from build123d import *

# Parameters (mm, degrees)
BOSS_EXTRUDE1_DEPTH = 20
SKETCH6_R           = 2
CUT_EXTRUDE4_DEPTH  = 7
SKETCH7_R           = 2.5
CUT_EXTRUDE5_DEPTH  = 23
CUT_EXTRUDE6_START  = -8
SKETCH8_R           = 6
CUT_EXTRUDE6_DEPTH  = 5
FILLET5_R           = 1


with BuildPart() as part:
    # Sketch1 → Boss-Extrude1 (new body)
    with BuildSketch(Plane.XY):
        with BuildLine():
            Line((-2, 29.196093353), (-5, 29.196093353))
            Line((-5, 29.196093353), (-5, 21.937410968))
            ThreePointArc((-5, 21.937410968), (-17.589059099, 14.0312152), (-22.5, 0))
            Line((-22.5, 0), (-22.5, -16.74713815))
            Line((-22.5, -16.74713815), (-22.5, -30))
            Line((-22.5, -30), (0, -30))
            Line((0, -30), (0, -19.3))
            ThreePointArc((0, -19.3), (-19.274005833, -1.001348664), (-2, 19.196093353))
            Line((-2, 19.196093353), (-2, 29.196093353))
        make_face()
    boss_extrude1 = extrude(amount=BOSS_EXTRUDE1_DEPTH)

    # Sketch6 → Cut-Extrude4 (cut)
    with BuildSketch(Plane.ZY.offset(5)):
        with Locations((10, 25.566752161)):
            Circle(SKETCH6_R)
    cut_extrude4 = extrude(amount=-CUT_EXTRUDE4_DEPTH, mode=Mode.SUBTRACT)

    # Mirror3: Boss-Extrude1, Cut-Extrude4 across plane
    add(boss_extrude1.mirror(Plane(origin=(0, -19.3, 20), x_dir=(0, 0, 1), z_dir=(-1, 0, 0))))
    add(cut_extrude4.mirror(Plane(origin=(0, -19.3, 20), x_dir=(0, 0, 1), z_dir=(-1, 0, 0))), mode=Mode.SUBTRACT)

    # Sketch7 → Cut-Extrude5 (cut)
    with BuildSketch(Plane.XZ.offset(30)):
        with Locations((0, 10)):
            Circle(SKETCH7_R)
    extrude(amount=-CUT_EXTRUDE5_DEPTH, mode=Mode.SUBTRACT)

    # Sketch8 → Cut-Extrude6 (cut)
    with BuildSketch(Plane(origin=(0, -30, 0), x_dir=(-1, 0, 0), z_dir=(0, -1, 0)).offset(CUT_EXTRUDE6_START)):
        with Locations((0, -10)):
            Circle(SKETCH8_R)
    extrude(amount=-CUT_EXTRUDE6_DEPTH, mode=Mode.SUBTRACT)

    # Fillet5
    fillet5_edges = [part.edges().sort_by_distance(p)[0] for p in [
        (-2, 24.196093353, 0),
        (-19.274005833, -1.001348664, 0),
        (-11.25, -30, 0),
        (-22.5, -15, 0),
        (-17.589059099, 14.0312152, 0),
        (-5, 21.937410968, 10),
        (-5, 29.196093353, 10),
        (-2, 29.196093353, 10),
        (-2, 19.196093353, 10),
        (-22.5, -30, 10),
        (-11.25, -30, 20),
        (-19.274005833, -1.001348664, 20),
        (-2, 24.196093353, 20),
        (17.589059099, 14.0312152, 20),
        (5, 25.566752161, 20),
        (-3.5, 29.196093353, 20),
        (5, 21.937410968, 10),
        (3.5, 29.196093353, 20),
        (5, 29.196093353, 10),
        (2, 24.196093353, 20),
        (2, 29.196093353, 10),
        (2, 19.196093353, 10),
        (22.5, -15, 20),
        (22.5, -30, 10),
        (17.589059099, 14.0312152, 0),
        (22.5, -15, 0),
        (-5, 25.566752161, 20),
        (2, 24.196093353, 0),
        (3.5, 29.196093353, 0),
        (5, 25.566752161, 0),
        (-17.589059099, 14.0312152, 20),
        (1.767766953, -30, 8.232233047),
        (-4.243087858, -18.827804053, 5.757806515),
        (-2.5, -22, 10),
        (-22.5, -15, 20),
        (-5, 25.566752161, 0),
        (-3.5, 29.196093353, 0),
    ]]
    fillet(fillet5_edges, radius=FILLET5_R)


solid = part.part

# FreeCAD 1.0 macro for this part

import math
import FreeCAD as App
import Part
import Sketcher

V = App.Vector


def edges_at(feature, points):
    """Names of the edges that pass closest to the given points."""
    edges = feature.Shape.Edges
    near = lambda p: min(range(len(edges)), key=lambda i: edges[i].distToShape(Part.Vertex(*p))[0])
    return sorted({f"Edge{near(p) + 1}" for p in points})

doc = App.newDocument("Part")
body = doc.addObject("PartDesign::Body", "Body")

# Sketch on XY plane
sketch1 = body.newObject("Sketcher::SketchObject", "Sketch")
sketch1.AttachmentSupport = (doc.getObject("XY_Plane"), [""])
sketch1.MapMode = "FlatFace"
sketch1.addGeometry(Part.LineSegment(V(-2, 29.2, 0), V(-5, 29.2, 0)), False)
sketch1.addGeometry(Part.LineSegment(V(-5, 29.2, 0), V(-5, 21.9, 0)), False)
sketch1.addGeometry(Part.ArcOfCircle(Part.Circle(V(0, 0, 0), V(0, 0, 1), 22.5), math.radians(103), math.radians(180)), False)
sketch1.addGeometry(Part.LineSegment(V(-22.5, 0, 0), V(-22.5, -30, 0)), False)
sketch1.addGeometry(Part.LineSegment(V(-22.5, -30, 0), V(0, -30, 0)), False)
sketch1.addGeometry(Part.LineSegment(V(0, -30, 0), V(0, -19.3, 0)), False)
sketch1.addGeometry(Part.ArcOfCircle(Part.Circle(V(0, 0, 0), V(0, 0, 1), 19.3), math.radians(96), math.radians(270)), False)
sketch1.addGeometry(Part.LineSegment(V(-2, 19.2, 0), V(-2, 29.2, 0)), False)
sketch1.addConstraint(Sketcher.Constraint("Coincident", 0, 2, 1, 1))
sketch1.addConstraint(Sketcher.Constraint("Coincident", 1, 2, 2, 1))
sketch1.addConstraint(Sketcher.Constraint("Tangent", 2, 2, 3, 1))
sketch1.addConstraint(Sketcher.Constraint("Coincident", 3, 2, 4, 1))
sketch1.addConstraint(Sketcher.Constraint("Coincident", 4, 2, 5, 1))
sketch1.addConstraint(Sketcher.Constraint("Coincident", 5, 2, 6, 2))
sketch1.addConstraint(Sketcher.Constraint("Coincident", 6, 1, 7, 1))
sketch1.addConstraint(Sketcher.Constraint("Coincident", 7, 2, 0, 1))
sketch1.addConstraint(Sketcher.Constraint("Horizontal", 0))
sketch1.addConstraint(Sketcher.Constraint("Vertical", 1))
sketch1.addConstraint(Sketcher.Constraint("Vertical", 3))
sketch1.addConstraint(Sketcher.Constraint("Horizontal", 4))
sketch1.addConstraint(Sketcher.Constraint("Vertical", 5))
sketch1.addConstraint(Sketcher.Constraint("Vertical", 7))
sketch1.addConstraint(Sketcher.Constraint("Coincident", 2, 3, -1, 1))
sketch1.addConstraint(Sketcher.Constraint("Coincident", 6, 3, -1, 1))
sketch1.addConstraint(Sketcher.Constraint("PointOnObject", 4, 2, -2))
sketch1.addConstraint(Sketcher.Constraint("Radius", 2, 22.5))
sketch1.addConstraint(Sketcher.Constraint("Radius", 6, 19.3))
sketch1.addConstraint(Sketcher.Constraint("DistanceX", 0, 2, 0, 1, 3.0))
sketch1.addConstraint(Sketcher.Constraint("DistanceY", 3, 2, 3, 1, 30.0))
sketch1.addConstraint(Sketcher.Constraint("DistanceY", 7, 1, 7, 2, 10.0))
sketch1.addConstraint(Sketcher.Constraint("DistanceX", 0, 2, -1, 1, 5.0))
pad1 = body.newObject("PartDesign::Pad", "Pad")
pad1.Profile = sketch1
pad1.Length = 20

# Sketch on YZ plane
sketch2 = body.newObject("Sketcher::SketchObject", "Sketch001")
sketch2.AttachmentSupport = (doc.getObject("YZ_Plane"), [""])
sketch2.MapMode = "FlatFace"
sketch2.AttachmentOffset = App.Placement(V(0, 0, -5), App.Rotation())
sketch2.addGeometry(Part.Circle(V(25.6, 10, 0), V(0, 0, 1), 2), False)
sketch2.addConstraint(Sketcher.Constraint("Diameter", 0, 4.0))
sketch2.addConstraint(Sketcher.Constraint("DistanceY", -1, 1, 0, 3, 10.0))
sketch2.addConstraint(Sketcher.Constraint("DistanceX", -1, 1, 0, 3, 25.566752))
pocket1 = body.newObject("PartDesign::Pocket", "Pocket")
pocket1.Profile = sketch2
pocket1.Length = 7
pocket1.Reversed = True
doc.recompute()

mirrored = body.newObject("PartDesign::Mirrored", "Mirrored")
mirrored.Originals = [pad1, pocket1]
mirrored.MirrorPlane = (doc.getObject("YZ_Plane"), [""])
body.Tip = mirrored

# Sketch on XZ plane
sketch3 = body.newObject("Sketcher::SketchObject", "Sketch002")
sketch3.AttachmentSupport = (doc.getObject("XZ_Plane"), [""])
sketch3.MapMode = "FlatFace"
sketch3.AttachmentOffset = App.Placement(V(0, 0, 30), App.Rotation())
sketch3.addGeometry(Part.Circle(V(0, 10, 0), V(0, 0, 1), 2.5), False)
sketch3.addConstraint(Sketcher.Constraint("PointOnObject", 0, 3, -2))
sketch3.addConstraint(Sketcher.Constraint("Diameter", 0, 5.0))
sketch3.addConstraint(Sketcher.Constraint("DistanceY", -1, 1, 0, 3, 10.0))
pocket2 = body.newObject("PartDesign::Pocket", "Pocket001")
pocket2.Profile = sketch3
pocket2.Length = 23

# Sketch on XZ plane
sketch4 = body.newObject("Sketcher::SketchObject", "Sketch003")
sketch4.AttachmentSupport = (doc.getObject("XZ_Plane"), [""])
sketch4.MapMode = "FlatFace"
sketch4.AttachmentOffset = App.Placement(V(0, 0, 22), App.Rotation())
sketch4.addGeometry(Part.Circle(V(0, 10, 0), V(0, 0, 1), 6), False)
sketch4.addConstraint(Sketcher.Constraint("PointOnObject", 0, 3, -2))
sketch4.addConstraint(Sketcher.Constraint("Diameter", 0, 12.0))
sketch4.addConstraint(Sketcher.Constraint("DistanceY", -1, 1, 0, 3, 10.0))
pocket3 = body.newObject("PartDesign::Pocket", "Pocket002")
pocket3.Profile = sketch4
pocket3.Length = 5
doc.recompute()

fillet = body.newObject("PartDesign::Fillet", "Fillet")
fillet.Base = (pocket3, edges_at(pocket3, [
    (-2, 24.196, 0),
    (-19.274, -1.001, 0),
    (0, -30, 0),
    (-22.5, -15, 0),
    (-17.589, 14.031, 0),
    (-5, 21.937, 10),
    (-5, 29.196, 10),
    (-2, 29.196, 10),
    (-2, 19.196, 10),
    (-22.5, -30, 10),
    (0, -30, 20),
    (-19.274, -1.001, 20),
    (-2, 24.196, 20),
    (17.589, 14.031, 20),
    (5, 25.567, 20),
    (-3.5, 29.196, 20),
    (5, 21.937, 10),
    (3.5, 29.196, 20),
    (5, 29.196, 10),
    (2, 24.196, 20),
    (2, 29.196, 10),
    (2, 19.196, 10),
    (22.5, -15, 20),
    (22.5, -30, 10),
    (17.589, 14.031, 0),
    (22.5, -15, 0),
    (-5, 25.567, 20),
    (2, 24.196, 0),
    (3.5, 29.196, 0),
    (5, 25.567, 0),
    (-17.589, 14.031, 20),
    (-2.5, -30, 10),
    (-4.243, -18.828, 5.758),
    (-2.5, -22, 10),
    (-22.5, -15, 20),
    (-5, 25.567, 0),
    (-3.5, 29.196, 0),
]))
fillet.Radius = 1

doc.recompute()
